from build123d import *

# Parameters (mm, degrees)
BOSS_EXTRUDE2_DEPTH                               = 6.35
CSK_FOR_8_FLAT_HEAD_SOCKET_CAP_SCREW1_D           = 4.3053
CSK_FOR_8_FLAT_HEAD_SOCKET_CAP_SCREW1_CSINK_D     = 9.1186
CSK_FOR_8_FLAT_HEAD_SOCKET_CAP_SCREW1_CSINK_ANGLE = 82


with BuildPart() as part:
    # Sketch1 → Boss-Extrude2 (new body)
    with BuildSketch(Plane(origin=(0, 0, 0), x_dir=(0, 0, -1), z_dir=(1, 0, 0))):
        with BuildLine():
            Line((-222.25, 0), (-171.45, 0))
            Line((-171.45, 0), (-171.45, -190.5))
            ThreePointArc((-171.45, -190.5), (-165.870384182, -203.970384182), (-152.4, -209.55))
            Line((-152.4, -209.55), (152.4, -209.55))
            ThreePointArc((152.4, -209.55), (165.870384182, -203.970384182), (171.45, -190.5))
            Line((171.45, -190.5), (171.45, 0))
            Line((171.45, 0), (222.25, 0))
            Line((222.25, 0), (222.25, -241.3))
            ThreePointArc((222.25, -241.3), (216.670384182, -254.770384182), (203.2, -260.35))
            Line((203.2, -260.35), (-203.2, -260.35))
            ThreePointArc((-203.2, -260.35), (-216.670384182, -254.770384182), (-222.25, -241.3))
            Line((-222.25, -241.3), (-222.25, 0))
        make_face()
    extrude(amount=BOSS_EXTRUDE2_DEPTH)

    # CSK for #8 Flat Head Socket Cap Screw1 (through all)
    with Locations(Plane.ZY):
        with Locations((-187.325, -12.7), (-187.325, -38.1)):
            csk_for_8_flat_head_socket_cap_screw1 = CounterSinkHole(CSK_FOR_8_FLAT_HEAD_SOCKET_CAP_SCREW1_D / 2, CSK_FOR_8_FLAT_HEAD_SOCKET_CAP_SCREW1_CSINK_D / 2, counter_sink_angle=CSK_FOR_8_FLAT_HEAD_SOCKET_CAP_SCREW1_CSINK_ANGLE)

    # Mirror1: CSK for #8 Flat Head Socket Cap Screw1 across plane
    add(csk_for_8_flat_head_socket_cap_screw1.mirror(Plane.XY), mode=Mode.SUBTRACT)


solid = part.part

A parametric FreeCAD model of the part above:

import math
import FreeCAD as App
import Part
import Sketcher
Q = App.Units.Quantity

doc = App.newDocument("Part")
body = doc.addObject("PartDesign::Body", "Body")

sketch1 = body.newObject("Sketcher::SketchObject", "Sketch")
sketch1.AttachmentSupport = (doc.getObject("YZ_Plane"), [""])
sketch1.MapMode = "FlatFace"
sketch1.addGeometry(Part.LineSegment(App.Vector(0, 171.45, 0), App.Vector(0, 222.25, 0)), False)
sketch1.addGeometry(Part.LineSegment(App.Vector(0, 222.25, 0), App.Vector(-241.3, 222.25, 0)), False)
sketch1.addGeometry(Part.ArcOfCircle(Part.Circle(App.Vector(-241.3, 203.2, 0), App.Vector(0, 0, 1), 19.05), math.radians(90), math.radians(180)), False)
sketch1.addGeometry(Part.LineSegment(App.Vector(-260.35, 203.2, 0), App.Vector(-260.35, -203.2, 0)), False)
sketch1.addGeometry(Part.ArcOfCircle(Part.Circle(App.Vector(-241.3, -203.2, 0), App.Vector(0, 0, 1), 19.05), math.radians(180), math.radians(270)), False)
sketch1.addGeometry(Part.LineSegment(App.Vector(-241.3, -222.25, 0), App.Vector(0, -222.25, 0)), False)
sketch1.addGeometry(Part.LineSegment(App.Vector(0, -222.25, 0), App.Vector(0, -171.45, 0)), False)
sketch1.addGeometry(Part.LineSegment(App.Vector(0, -171.45, 0), App.Vector(-190.5, -171.45, 0)), False)
sketch1.addGeometry(Part.ArcOfCircle(Part.Circle(App.Vector(-190.5, -152.4, 0), App.Vector(0, 0, 1), 19.05), math.radians(180), math.radians(270)), False)
sketch1.addGeometry(Part.LineSegment(App.Vector(-209.55, -152.4, 0), App.Vector(-209.55, 152.4, 0)), False)
sketch1.addGeometry(Part.ArcOfCircle(Part.Circle(App.Vector(-190.5, 152.4, 0), App.Vector(0, 0, 1), 19.05), math.radians(90), math.radians(180)), False)
sketch1.addGeometry(Part.LineSegment(App.Vector(-190.5, 171.45, 0), App.Vector(0, 171.45, 0)), False)
sketch1.addConstraint(Sketcher.Constraint("Coincident", 0, 2, 1, 1))
sketch1.addConstraint(Sketcher.Constraint("Tangent", 1, 2, 2, 1))
sketch1.addConstraint(Sketcher.Constraint("Tangent", 2, 2, 3, 1))
sketch1.addConstraint(Sketcher.Constraint("Tangent", 3, 2, 4, 1))
sketch1.addConstraint(Sketcher.Constraint("Tangent", 4, 2, 5, 1))
sketch1.addConstraint(Sketcher.Constraint("Coincident", 5, 2, 6, 1))
sketch1.addConstraint(Sketcher.Constraint("Coincident", 6, 2, 7, 1))
sketch1.addConstraint(Sketcher.Constraint("Tangent", 7, 2, 8, 2))
sketch1.addConstraint(Sketcher.Constraint("Tangent", 8, 1, 9, 1))
sketch1.addConstraint(Sketcher.Constraint("Tangent", 9, 2, 10, 2))
sketch1.addConstraint(Sketcher.Constraint("Tangent", 10, 1, 11, 1))
sketch1.addConstraint(Sketcher.Constraint("Coincident", 11, 2, 0, 1))
sketch1.addConstraint(Sketcher.Constraint("Vertical", 0))
sketch1.addConstraint(Sketcher.Constraint("Horizontal", 1))
sketch1.addConstraint(Sketcher.Constraint("Vertical", 3))
sketch1.addConstraint(Sketcher.Constraint("Horizontal", 5))
sketch1.addConstraint(Sketcher.Constraint("Vertical", 6))
sketch1.addConstraint(Sketcher.Constraint("Horizontal", 7))
sketch1.addConstraint(Sketcher.Constraint("Vertical", 9))
sketch1.addConstraint(Sketcher.Constraint("Horizontal", 11))
sketch1.addConstraint(Sketcher.Constraint("Equal", 2, 4))
sketch1.addConstraint(Sketcher.Constraint("Equal", 4, 8))
sketch1.addConstraint(Sketcher.Constraint("Equal", 8, 10))
sketch1.addConstraint(Sketcher.Constraint("Symmetric", 0, 2, 5, 2, -1, 1))
sketch1.addConstraint(Sketcher.Constraint("Symmetric", 6, 2, 11, 2, -1))
sketch1.addConstraint(Sketcher.Constraint("DistanceY", 0, 1, 0, 2, Q("2 in")))
sketch1.addConstraint(Sketcher.Constraint("DistanceY", 3, 2, 3, 1, Q("16 in")))
sketch1.addConstraint(Sketcher.Constraint("Radius", 2, Q("0.75 in")))
sketch1.addConstraint(Sketcher.Constraint("DistanceX", 1, 2, 1, 1, Q("9.5 in")))
sketch1.addConstraint(Sketcher.Constraint("DistanceX", 7, 2, 7, 1, Q("7.5 in")))
pad1 = body.newObject("PartDesign::Pad", "Pad")
pad1.Profile = sketch1
pad1.Length = Q("0.25 in")

sketch2 = body.newObject("Sketcher::SketchObject", "Sketch001")
sketch2.AttachmentSupport = (doc.getObject("YZ_Plane"), [""])
sketch2.MapMode = "FlatFace"
sketch2.addGeometry(Part.Circle(App.Vector(-12.7, -187.325, 0), App.Vector(0, 0, 1), 2.15265), False)
sketch2.addGeometry(Part.Circle(App.Vector(-38.1, -187.325, 0), App.Vector(0, 0, 1), 2.15265), False)
sketch2.addConstraint(Sketcher.Constraint("Equal", 0, 1))
sketch2.addConstraint(Sketcher.Constraint("Horizontal", 0, 3, 1, 3))
sketch2.addConstraint(Sketcher.Constraint("DistanceX", 1, 3, 0, 3, Q("1 in")))
sketch2.addConstraint(Sketcher.Constraint("Diameter", 0, Q("0.1695 in")))
sketch2.addConstraint(Sketcher.Constraint("DistanceX", 0, 3, -1, 1, Q("0.5 in")))
sketch2.addConstraint(Sketcher.Constraint("DistanceY", 0, 3, -1, 1, Q("7.375 in")))
doc.recompute()
hole = body.newObject("PartDesign::Hole", "Hole")
hole.Profile = sketch2
hole.ThreadType = "None"
hole.Diameter = Q("0.1695 in")
hole.DepthType = "ThroughAll"
hole.HoleCutType = "Countersink"
hole.HoleCutDiameter = Q("0.359 in")
hole.HoleCutCountersinkAngle = 82
hole.Reversed = True
doc.recompute()

mirrored = body.newObject("PartDesign::Mirrored", "Mirrored")
mirrored.Originals = [hole]
mirrored.MirrorPlane = (doc.getObject("XY_Plane"), [""])
body.Tip = mirrored

doc.recompute()
